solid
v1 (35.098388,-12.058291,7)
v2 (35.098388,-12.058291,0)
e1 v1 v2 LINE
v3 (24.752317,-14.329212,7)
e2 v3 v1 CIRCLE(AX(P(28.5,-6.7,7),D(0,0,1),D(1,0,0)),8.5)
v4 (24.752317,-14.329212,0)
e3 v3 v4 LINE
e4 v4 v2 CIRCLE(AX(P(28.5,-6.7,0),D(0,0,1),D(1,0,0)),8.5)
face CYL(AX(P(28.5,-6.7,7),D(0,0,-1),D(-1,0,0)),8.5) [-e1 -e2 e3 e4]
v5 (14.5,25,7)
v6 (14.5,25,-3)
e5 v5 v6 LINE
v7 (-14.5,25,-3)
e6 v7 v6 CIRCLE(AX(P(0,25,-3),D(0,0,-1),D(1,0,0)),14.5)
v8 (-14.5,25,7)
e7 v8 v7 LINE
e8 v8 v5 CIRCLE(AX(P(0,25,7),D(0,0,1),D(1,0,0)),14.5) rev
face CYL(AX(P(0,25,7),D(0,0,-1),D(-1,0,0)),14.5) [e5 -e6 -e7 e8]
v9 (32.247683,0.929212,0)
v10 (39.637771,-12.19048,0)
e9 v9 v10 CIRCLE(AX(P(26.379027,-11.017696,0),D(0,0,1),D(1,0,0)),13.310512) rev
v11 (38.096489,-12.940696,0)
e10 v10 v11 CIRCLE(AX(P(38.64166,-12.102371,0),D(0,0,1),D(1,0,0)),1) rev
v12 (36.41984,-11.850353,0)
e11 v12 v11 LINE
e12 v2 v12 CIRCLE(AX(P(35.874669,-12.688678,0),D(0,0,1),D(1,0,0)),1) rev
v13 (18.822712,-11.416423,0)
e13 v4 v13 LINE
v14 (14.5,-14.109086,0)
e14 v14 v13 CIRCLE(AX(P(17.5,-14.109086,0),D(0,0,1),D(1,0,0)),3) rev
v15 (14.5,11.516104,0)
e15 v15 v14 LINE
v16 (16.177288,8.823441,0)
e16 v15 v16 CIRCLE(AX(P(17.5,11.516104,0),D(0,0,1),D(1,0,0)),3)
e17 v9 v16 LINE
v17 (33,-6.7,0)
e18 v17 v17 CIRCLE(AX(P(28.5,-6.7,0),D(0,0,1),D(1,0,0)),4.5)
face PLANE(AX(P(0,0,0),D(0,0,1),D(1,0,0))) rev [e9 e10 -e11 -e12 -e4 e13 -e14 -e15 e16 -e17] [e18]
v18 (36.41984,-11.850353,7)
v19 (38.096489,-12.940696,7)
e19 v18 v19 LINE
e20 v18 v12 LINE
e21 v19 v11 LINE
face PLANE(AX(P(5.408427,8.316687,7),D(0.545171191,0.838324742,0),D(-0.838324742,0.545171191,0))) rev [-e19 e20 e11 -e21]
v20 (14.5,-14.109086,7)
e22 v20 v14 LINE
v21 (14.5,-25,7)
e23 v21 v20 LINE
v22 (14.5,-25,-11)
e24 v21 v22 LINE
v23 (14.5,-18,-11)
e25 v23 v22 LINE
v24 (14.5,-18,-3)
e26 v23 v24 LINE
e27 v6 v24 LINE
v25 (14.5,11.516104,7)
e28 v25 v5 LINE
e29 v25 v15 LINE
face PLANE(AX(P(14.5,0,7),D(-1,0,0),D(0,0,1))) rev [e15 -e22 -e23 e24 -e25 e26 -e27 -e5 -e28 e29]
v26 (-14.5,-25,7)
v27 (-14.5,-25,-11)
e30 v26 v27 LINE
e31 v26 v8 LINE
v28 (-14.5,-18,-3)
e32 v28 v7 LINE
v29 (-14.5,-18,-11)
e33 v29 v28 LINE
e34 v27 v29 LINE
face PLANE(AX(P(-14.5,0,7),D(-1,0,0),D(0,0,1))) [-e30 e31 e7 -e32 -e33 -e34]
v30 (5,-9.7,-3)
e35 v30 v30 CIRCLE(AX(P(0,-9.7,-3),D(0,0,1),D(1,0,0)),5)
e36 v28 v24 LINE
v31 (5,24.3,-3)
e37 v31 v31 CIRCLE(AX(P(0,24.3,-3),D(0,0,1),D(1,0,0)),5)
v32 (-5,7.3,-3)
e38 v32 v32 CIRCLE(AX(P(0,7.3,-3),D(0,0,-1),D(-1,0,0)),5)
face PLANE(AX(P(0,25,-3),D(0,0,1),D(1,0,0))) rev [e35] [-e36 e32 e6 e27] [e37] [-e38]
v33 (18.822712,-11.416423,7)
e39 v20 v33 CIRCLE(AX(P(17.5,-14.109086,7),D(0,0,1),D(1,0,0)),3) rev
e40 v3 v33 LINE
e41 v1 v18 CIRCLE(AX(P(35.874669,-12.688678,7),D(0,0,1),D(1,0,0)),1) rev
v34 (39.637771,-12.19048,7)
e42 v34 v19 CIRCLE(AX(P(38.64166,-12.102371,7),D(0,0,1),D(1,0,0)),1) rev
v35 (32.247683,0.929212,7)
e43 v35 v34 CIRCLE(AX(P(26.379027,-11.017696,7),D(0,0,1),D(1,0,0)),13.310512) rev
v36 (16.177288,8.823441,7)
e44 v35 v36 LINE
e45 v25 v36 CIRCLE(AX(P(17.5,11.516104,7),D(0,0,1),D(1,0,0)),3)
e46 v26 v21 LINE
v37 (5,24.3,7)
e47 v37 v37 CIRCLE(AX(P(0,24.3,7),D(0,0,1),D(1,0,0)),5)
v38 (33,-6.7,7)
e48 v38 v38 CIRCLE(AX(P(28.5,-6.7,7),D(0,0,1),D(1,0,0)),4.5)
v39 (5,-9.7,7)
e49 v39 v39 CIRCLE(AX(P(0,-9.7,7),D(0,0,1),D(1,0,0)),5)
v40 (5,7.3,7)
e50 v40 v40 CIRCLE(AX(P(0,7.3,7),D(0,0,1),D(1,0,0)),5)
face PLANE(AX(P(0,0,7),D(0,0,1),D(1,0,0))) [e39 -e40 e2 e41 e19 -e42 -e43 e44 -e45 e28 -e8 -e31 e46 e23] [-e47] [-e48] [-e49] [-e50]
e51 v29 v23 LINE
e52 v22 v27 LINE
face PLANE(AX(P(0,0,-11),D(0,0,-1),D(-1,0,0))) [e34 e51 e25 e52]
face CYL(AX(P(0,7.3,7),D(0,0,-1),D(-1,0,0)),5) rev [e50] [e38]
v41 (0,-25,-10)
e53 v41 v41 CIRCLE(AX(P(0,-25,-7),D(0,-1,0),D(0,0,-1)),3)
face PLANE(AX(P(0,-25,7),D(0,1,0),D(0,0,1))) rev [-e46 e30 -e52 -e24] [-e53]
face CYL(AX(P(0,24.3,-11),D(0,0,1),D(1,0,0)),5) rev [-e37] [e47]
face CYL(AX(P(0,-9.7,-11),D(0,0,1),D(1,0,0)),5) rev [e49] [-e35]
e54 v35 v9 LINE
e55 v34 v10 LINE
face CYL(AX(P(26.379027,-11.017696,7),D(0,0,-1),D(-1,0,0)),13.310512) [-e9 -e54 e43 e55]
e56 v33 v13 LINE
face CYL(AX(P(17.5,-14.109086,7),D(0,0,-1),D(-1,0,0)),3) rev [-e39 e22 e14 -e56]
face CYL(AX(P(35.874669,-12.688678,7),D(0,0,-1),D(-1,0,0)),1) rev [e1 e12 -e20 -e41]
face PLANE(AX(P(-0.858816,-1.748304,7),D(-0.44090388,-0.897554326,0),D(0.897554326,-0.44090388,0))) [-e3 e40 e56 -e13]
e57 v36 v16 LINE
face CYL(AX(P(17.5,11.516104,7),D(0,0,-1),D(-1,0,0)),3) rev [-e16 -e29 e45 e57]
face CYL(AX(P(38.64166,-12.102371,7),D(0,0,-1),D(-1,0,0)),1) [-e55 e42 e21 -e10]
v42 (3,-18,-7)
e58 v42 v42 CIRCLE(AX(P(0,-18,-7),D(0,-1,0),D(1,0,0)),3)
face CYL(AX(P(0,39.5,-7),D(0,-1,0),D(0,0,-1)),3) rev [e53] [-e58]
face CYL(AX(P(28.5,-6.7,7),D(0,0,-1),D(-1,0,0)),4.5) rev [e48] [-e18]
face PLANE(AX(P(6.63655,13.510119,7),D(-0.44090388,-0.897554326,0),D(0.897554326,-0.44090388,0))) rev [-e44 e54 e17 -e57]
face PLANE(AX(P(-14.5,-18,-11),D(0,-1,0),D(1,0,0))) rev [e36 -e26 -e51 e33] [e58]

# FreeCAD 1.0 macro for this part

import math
import FreeCAD as App
import Part
import Sketcher

V = App.Vector

doc = App.newDocument("Part")
body = doc.addObject("PartDesign::Body", "Body")

sketch1 = body.newObject("Sketcher::SketchObject", "Sketch")
sketch1.AttachmentSupport = (doc.getObject("XY_Plane"), [""])
sketch1.MapMode = "FlatFace"
sketch1.addGeometry([
    Part.LineSegment(V(-14.5, -25, 0), V(14.5, -25, 0)),
    Part.LineSegment(V(14.5, -25, 0), V(14.5, -14.1, 0)),
    Part.ArcOfCircle(Part.Circle(V(17.5, -14.1, 0), V(0, 0, 1), 3), math.radians(64), math.radians(180)),
    Part.LineSegment(V(18.8, -11.4, 0), V(24.8, -14.3, 0)),
    Part.ArcOfCircle(Part.Circle(V(28.5, -6.7, 0), V(0, 0, 1), 8.5), math.radians(-116), math.radians(-39)),
    Part.ArcOfCircle(Part.Circle(V(35.9, -12.7, 0), V(0, 0, 1), 1), math.radians(57), math.radians(141)),
    Part.LineSegment(V(36.4, -11.9, 0), V(38.1, -12.9, 0)),
    Part.ArcOfCircle(Part.Circle(V(38.6, -12.1, 0), V(0, 0, 1), 1), math.radians(-123), math.radians(-5)),
    Part.ArcOfCircle(Part.Circle(V(26.4, -11, 0), V(0, 0, 1), 13.3), math.radians(-5), math.radians(64)),
    Part.LineSegment(V(32.2, 0.9, 0), V(16.2, 8.8, 0)),
    Part.ArcOfCircle(Part.Circle(V(17.5, 11.5, 0), V(0, 0, 1), 3), math.radians(-180), math.radians(-116)),
    Part.LineSegment(V(14.5, 11.5, 0), V(14.5, 25, 0)),
    Part.ArcOfCircle(Part.Circle(V(0, 25, 0), V(0, 0, 1), 14.5), math.radians(0), math.radians(180)),
    Part.LineSegment(V(-14.5, 25, 0), V(-14.5, -25, 0)),
    Part.Circle(V(28.5, -6.7, 0), V(0, 0, 1), 4.5),
    Part.Circle(V(0, 7.3, 0), V(0, 0, 1), 5),
], False)
sketch1.addConstraint([
    Sketcher.Constraint("Coincident", 0, 2, 1, 1),
    Sketcher.Constraint("Tangent", 1, 2, 2, 2),
    Sketcher.Constraint("Tangent", 2, 1, 3, 1),
    Sketcher.Constraint("Tangent", 3, 2, 4, 1),
    Sketcher.Constraint("Tangent", 4, 2, 5, 2),
    Sketcher.Constraint("Tangent", 5, 1, 6, 1),
    Sketcher.Constraint("Tangent", 6, 2, 7, 1),
    Sketcher.Constraint("Tangent", 7, 2, 8, 1),
    Sketcher.Constraint("Tangent", 8, 2, 9, 1),
    Sketcher.Constraint("Tangent", 9, 2, 10, 2),
    Sketcher.Constraint("Tangent", 10, 1, 11, 1),
    Sketcher.Constraint("Tangent", 11, 2, 12, 1),
    Sketcher.Constraint("Tangent", 12, 2, 13, 1),
    Sketcher.Constraint("Coincident", 13, 2, 0, 1),
    Sketcher.Constraint("Horizontal", 0),
    Sketcher.Constraint("Vertical", 1),
    Sketcher.Constraint("Vertical", 11),
    Sketcher.Constraint("Vertical", 13),
    Sketcher.Constraint("Coincident", 14, 3, 4, 3),
    Sketcher.Constraint("Equal", 5, 7),
    Sketcher.Constraint("Equal", 2, 10),
    Sketcher.Constraint("Symmetric", 0, 2, 12, 2, -1, 1),
    Sketcher.Constraint("PointOnObject", 12, 3, -2),
    Sketcher.Constraint("PointOnObject", 15, 3, -2),
    Sketcher.Constraint("Parallel", 3, 9),
    Sketcher.Constraint("Diameter", 14, 9.0),
    Sketcher.Constraint("Diameter", 15, 10.0),
    Sketcher.Constraint("Radius", 2, 3.0),
    Sketcher.Constraint("Radius", 5, 1.0),
    Sketcher.Constraint("Radius", 4, 8.5),
    Sketcher.Constraint("Radius", 12, 14.5),
    Sketcher.Constraint("DistanceY", 13, 2, 13, 1, 50.0),
    Sketcher.Constraint("Distance", 6, 2.0),
    Sketcher.Constraint("DistanceX", 2, 3, 4, 3, 11.0),
    Sketcher.Constraint("DistanceY", 4, 3, 15, 3, 14.0),
    Sketcher.Constraint("DistanceY", 4, 3, -1, 1, 6.7),
    Sketcher.Constraint("Radius", 8, 13.310512),
    Sketcher.Constraint("DistanceY", 8, 3, 10, 3, 22.5338),
    Sketcher.Constraint("DistanceX", 4, 2, 6, 2, 2.998102),
    Sketcher.Constraint("Distance", 9, 17.904648),
    Sketcher.Constraint("DistanceY", 11, 1, 11, 2, 13.483896),
])
pad1 = body.newObject("PartDesign::Pad", "Pad")
pad1.Profile = sketch1
pad1.Length = 7

sketch2 = body.newObject("Sketcher::SketchObject", "Sketch001")
sketch2.AttachmentSupport = (doc.getObject("XY_Plane"), [""])
sketch2.MapMode = "FlatFace"
sketch2.addGeometry([
    Part.LineSegment(V(-14, -25, 0), V(-14, 25, 0)),
    Part.ArcOfCircle(Part.Circle(V(0, 25, 0), V(0, 0, 1), 14), math.radians(0), math.radians(180)),
    Part.LineSegment(V(14, 25, 0), V(14, -25, 0)),
    Part.LineSegment(V(14, -25, 0), V(-14, -25, 0)),
    Part.Circle(V(0, 7, 0), V(0, 0, 1), 5),
], False)
sketch2.addConstraint([
    Sketcher.Constraint("Tangent", 0, 2, 1, 2),
    Sketcher.Constraint("Tangent", 1, 1, 2, 1),
    Sketcher.Constraint("Coincident", 2, 2, 3, 1),
    Sketcher.Constraint("Coincident", 3, 2, 0, 1),
    Sketcher.Constraint("Vertical", 0),
    Sketcher.Constraint("Vertical", 2),
    Sketcher.Constraint("Horizontal", 3),
    Sketcher.Constraint("Symmetric", 0, 2, 2, 2, -1, 1),
    Sketcher.Constraint("PointOnObject", 4, 3, -2),
    Sketcher.Constraint("Diameter", 4, 10.0),
    Sketcher.Constraint("Radius", 1, 14.5),
    Sketcher.Constraint("DistanceY", 0, 1, 0, 2, 50.0),
    Sketcher.Constraint("DistanceY", -1, 1, 4, 3, 7.3),
])
pad2 = body.newObject("PartDesign::Pad", "Pad001")
pad2.Profile = sketch2
pad2.Length = 3
pad2.Reversed = True

sketch3 = body.newObject("Sketcher::SketchObject", "Sketch002")
sketch3.AttachmentSupport = (doc.getObject("XY_Plane"), [""])
sketch3.MapMode = "FlatFace"
sketch3.AttachmentOffset = App.Placement(V(0, 0, -3), App.Rotation())
sketch3.addGeometry([
    Part.LineSegment(V(14, -18, 0), V(14, -25, 0)),
    Part.LineSegment(V(14, -25, 0), V(-14, -25, 0)),
    Part.LineSegment(V(-14, -25, 0), V(-14, -18, 0)),
    Part.LineSegment(V(-14, -18, 0), V(14, -18, 0)),
], False)
sketch3.addConstraint([
    Sketcher.Constraint("Coincident", 0, 2, 1, 1),
    Sketcher.Constraint("Coincident", 1, 2, 2, 1),
    Sketcher.Constraint("Coincident", 2, 2, 3, 1),
    Sketcher.Constraint("Coincident", 3, 2, 0, 1),
    Sketcher.Constraint("Vertical", 0),
    Sketcher.Constraint("Horizontal", 1),
    Sketcher.Constraint("Vertical", 2),
    Sketcher.Constraint("Horizontal", 3),
    Sketcher.Constraint("DistanceX", 1, 2, 1, 1, 29.0),
    Sketcher.Constraint("DistanceY", 0, 2, 0, 1, 7.0),
    Sketcher.Constraint("DistanceY", 0, 2, -1, 1, 25.0),
    Sketcher.Constraint("DistanceX", -1, 1, 0, 2, 14.5),
])
pad3 = body.newObject("PartDesign::Pad", "Pad002")
pad3.Profile = sketch3
pad3.Length = 8
pad3.Reversed = True

sketch4 = body.newObject("Sketcher::SketchObject", "Sketch003")
sketch4.AttachmentSupport = (doc.getObject("XZ_Plane"), [""])
sketch4.MapMode = "FlatFace"
sketch4.AttachmentOffset = App.Placement(V(0, 0, 25), App.Rotation())
sketch4.addGeometry(Part.Circle(V(0, -7, 0), V(0, 0, 1), 3), False)
sketch4.addConstraint([
    Sketcher.Constraint("PointOnObject", 0, 3, -2),
    Sketcher.Constraint("Diameter", 0, 6.0),
    Sketcher.Constraint("DistanceY", 0, 3, -1, 1, 7.0),
])
pocket1 = body.newObject("PartDesign::Pocket", "Pocket")
pocket1.Profile = sketch4
pocket1.Type = "ThroughAll"

sketch5 = body.newObject("Sketcher::SketchObject", "Sketch004")
sketch5.AttachmentSupport = (doc.getObject("XY_Plane"), [""])
sketch5.MapMode = "FlatFace"
sketch5.AttachmentOffset = App.Placement(V(0, 0, 7), App.Rotation())
sketch5.addGeometry([
    Part.Circle(V(0, -10, 0), V(0, 0, 1), 5),
    Part.Circle(V(0, 24, 0), V(0, 0, 1), 5),
], False)
sketch5.addConstraint([
    Sketcher.Constraint("Equal", 0, 1),
    Sketcher.Constraint("PointOnObject", 0, 3, -2),
    Sketcher.Constraint("PointOnObject", 1, 3, -2),
    Sketcher.Constraint("Diameter", 0, 10.0),
    Sketcher.Constraint("DistanceY", 0, 3, 1, 3, 34.0),
    Sketcher.Constraint("DistanceY", 0, 3, -1, 1, 9.7),
])
pocket2 = body.newObject("PartDesign::Pocket", "Pocket001")
pocket2.Profile = sketch5
pocket2.Type = "ThroughAll"

doc.recompute()
